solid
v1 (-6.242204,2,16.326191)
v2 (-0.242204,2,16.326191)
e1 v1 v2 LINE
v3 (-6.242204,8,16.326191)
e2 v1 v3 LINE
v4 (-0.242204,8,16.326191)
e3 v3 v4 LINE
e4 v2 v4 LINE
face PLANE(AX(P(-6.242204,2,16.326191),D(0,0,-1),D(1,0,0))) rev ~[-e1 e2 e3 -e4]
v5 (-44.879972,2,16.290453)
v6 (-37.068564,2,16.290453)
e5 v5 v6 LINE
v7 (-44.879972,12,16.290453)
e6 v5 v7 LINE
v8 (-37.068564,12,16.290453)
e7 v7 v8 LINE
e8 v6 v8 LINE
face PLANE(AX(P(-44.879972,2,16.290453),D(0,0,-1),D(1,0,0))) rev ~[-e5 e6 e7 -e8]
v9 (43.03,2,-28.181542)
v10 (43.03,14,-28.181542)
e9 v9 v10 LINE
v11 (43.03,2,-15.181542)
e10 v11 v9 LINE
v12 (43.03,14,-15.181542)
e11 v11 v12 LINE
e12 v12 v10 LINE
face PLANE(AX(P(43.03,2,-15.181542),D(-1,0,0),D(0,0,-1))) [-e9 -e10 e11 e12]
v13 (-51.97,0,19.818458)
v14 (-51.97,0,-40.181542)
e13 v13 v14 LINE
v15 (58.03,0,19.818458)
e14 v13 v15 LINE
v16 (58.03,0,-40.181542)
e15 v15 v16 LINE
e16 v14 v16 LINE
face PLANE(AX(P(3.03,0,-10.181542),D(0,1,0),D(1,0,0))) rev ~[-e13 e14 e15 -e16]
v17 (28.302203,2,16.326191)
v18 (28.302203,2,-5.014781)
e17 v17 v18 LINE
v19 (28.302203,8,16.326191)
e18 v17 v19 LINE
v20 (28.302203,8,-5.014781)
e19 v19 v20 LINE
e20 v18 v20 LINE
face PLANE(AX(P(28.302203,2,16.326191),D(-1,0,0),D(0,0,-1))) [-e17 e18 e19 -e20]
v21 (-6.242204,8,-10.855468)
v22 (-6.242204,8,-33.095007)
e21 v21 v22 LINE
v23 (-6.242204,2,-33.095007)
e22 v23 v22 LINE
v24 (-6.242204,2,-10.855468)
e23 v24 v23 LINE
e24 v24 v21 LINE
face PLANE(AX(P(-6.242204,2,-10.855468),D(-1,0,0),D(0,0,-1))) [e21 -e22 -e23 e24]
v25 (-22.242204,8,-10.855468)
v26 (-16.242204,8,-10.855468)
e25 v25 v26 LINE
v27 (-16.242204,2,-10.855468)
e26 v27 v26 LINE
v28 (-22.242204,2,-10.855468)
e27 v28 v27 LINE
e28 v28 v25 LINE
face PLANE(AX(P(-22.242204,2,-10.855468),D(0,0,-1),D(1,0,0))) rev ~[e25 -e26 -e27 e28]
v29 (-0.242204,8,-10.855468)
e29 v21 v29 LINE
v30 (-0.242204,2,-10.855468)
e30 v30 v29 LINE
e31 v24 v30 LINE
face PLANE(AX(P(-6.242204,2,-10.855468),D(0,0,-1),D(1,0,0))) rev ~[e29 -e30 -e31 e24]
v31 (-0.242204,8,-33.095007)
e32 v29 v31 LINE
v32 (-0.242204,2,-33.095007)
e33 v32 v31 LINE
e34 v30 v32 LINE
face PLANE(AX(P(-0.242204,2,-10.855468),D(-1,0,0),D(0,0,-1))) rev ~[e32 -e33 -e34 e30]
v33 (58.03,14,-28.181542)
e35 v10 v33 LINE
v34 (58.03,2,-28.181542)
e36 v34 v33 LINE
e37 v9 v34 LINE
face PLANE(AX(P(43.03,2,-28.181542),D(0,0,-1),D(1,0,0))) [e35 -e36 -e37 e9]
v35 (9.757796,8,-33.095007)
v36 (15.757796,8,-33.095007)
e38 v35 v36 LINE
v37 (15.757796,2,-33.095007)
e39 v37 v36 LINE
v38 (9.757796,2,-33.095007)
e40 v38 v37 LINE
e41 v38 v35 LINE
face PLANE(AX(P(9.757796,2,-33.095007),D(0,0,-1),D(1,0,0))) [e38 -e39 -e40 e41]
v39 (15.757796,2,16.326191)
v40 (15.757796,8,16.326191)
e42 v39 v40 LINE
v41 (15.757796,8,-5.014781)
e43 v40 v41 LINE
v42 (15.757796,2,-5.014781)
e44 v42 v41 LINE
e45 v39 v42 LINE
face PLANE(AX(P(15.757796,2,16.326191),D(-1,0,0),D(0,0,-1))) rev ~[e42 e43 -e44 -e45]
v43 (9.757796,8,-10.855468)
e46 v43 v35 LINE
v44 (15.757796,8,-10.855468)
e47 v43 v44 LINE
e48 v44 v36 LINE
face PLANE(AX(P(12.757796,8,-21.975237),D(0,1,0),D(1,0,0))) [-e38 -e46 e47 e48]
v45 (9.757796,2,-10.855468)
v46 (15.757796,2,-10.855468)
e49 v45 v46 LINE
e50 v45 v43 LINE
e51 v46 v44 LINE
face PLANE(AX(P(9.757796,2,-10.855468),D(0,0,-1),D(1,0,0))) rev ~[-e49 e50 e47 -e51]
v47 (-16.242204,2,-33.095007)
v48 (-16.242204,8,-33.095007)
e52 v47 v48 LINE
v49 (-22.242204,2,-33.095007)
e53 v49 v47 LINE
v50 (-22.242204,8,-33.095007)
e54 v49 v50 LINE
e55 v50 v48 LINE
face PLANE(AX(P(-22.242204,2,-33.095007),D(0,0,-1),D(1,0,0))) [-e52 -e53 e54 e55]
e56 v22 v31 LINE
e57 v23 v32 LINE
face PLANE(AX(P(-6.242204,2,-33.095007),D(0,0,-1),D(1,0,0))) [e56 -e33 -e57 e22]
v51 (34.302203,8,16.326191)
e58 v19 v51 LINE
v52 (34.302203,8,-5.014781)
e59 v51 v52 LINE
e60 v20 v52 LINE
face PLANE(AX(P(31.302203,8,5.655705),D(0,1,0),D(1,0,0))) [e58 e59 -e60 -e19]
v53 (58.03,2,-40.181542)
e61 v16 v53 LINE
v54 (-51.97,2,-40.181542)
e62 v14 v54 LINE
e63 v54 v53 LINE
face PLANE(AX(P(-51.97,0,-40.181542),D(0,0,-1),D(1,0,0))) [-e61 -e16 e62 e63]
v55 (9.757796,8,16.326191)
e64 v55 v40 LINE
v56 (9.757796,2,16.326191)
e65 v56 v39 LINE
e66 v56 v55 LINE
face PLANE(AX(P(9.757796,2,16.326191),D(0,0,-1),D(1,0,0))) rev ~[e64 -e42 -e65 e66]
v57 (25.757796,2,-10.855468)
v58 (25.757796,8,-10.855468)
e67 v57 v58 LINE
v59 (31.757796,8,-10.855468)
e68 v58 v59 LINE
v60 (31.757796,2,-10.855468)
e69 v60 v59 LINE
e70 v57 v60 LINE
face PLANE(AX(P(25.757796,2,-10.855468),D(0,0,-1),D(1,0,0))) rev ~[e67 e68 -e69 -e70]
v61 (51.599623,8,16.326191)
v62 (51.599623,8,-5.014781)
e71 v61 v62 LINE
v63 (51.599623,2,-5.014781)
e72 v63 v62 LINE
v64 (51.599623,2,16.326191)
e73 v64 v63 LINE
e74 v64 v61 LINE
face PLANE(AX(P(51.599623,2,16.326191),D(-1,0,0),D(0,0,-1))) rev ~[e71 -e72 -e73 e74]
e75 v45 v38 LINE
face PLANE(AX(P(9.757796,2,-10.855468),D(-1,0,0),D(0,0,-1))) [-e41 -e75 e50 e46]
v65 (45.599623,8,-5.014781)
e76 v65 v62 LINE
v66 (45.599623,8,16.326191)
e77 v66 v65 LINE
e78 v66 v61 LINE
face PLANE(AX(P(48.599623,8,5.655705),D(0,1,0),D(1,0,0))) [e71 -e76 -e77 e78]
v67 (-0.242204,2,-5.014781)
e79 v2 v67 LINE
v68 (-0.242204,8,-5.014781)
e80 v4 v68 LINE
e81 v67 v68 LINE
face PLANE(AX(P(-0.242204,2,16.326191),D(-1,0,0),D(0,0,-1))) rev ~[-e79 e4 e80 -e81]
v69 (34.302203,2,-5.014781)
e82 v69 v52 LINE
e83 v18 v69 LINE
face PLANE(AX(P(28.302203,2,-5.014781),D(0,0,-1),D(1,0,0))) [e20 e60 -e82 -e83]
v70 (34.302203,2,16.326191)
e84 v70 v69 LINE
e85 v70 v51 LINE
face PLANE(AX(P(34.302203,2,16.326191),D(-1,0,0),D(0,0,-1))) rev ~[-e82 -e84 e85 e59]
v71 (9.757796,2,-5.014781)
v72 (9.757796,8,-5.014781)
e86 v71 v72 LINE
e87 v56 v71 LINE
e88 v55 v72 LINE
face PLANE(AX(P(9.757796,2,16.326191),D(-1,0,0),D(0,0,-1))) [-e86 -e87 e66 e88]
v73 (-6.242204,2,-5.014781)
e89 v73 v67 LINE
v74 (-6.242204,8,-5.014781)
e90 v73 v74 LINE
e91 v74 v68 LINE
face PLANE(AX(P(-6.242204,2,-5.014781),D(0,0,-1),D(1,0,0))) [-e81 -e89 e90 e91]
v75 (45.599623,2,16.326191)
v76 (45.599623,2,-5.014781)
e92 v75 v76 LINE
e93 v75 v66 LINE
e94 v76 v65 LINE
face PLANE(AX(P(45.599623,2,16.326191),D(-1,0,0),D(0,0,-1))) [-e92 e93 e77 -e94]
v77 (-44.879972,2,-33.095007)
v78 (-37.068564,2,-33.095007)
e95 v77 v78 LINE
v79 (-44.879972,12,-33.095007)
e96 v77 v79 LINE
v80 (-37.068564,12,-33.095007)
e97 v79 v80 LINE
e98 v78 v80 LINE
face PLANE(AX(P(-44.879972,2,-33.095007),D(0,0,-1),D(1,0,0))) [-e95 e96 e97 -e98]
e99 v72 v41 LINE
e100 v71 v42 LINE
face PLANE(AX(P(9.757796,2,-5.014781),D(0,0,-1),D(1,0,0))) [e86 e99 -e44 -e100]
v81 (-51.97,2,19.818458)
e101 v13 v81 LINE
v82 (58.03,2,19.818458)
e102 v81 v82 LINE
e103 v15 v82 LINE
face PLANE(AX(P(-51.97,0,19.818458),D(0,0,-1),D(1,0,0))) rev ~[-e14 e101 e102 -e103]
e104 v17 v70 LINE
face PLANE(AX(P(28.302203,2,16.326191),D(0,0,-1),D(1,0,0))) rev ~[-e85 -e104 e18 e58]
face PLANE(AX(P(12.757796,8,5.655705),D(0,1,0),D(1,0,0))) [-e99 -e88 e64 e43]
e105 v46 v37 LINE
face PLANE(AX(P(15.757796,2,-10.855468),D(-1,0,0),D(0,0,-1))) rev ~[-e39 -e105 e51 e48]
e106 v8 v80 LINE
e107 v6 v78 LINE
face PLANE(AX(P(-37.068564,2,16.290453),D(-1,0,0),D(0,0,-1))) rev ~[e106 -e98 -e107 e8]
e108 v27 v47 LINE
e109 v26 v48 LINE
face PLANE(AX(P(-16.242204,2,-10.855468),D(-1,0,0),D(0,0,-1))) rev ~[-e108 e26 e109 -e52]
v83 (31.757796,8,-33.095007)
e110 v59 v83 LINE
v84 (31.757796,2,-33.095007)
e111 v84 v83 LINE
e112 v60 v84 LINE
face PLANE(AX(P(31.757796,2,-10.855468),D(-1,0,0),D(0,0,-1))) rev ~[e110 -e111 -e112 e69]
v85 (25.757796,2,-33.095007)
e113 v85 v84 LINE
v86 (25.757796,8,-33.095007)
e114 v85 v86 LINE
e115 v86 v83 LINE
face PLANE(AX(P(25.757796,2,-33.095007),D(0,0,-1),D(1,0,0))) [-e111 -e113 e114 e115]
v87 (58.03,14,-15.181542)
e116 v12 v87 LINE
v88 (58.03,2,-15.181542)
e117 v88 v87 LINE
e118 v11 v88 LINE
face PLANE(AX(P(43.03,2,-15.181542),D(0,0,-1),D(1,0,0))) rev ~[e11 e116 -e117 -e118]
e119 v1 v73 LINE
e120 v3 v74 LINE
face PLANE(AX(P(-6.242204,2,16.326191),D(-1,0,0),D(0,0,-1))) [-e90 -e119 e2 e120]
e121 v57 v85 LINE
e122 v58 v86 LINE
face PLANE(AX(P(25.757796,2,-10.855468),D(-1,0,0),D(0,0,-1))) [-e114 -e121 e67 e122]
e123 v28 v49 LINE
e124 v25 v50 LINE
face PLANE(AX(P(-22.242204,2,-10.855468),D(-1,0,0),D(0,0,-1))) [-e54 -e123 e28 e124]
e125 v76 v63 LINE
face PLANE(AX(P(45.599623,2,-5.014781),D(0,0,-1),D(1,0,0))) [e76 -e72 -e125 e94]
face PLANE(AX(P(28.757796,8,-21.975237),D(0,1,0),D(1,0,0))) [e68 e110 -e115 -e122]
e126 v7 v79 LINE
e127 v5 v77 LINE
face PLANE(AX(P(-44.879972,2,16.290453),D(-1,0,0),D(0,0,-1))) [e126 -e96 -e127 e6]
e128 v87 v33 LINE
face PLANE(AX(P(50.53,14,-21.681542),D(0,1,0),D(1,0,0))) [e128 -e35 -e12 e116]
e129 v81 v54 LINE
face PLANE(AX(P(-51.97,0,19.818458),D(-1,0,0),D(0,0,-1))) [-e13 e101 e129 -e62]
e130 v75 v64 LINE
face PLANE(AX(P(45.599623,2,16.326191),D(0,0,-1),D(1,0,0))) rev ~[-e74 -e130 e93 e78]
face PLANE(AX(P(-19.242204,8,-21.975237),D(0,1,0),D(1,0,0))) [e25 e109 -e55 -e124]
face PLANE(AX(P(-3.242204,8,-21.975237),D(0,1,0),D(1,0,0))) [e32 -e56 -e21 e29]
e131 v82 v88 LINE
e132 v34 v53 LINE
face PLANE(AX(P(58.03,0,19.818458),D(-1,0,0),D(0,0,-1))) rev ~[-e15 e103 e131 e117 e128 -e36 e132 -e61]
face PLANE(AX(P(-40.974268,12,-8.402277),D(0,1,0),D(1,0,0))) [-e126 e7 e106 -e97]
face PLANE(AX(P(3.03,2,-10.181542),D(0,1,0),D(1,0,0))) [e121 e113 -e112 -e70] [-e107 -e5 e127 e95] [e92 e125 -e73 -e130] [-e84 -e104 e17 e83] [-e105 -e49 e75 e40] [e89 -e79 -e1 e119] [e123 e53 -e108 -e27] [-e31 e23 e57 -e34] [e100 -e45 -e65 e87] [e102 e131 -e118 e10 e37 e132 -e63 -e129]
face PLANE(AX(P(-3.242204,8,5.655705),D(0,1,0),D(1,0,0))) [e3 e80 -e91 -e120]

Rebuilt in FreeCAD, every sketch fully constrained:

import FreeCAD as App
import Part
import Sketcher
Q = App.Units.Quantity

doc = App.newDocument("Part")
body = doc.addObject("PartDesign::Body", "Body")

sketch1 = body.newObject("Sketcher::SketchObject", "Sketch")
sketch1.AttachmentSupport = (doc.getObject("XZ_Plane"), [""])
sketch1.MapMode = "FlatFace"
sketch1.addGeometry(Part.LineSegment(App.Vector(-52, -40, 0), App.Vector(-52, 20, 0)), False)
sketch1.addGeometry(Part.LineSegment(App.Vector(-52, 20, 0), App.Vector(58, 20, 0)), False)
sketch1.addGeometry(Part.LineSegment(App.Vector(58, 20, 0), App.Vector(58, -40, 0)), False)
sketch1.addGeometry(Part.LineSegment(App.Vector(58, -40, 0), App.Vector(-52, -40, 0)), False)
sketch1.addConstraint(Sketcher.Constraint("Coincident", 0, 2, 1, 1))
sketch1.addConstraint(Sketcher.Constraint("Coincident", 1, 2, 2, 1))
sketch1.addConstraint(Sketcher.Constraint("Coincident", 2, 2, 3, 1))
sketch1.addConstraint(Sketcher.Constraint("Coincident", 3, 2, 0, 1))
sketch1.addConstraint(Sketcher.Constraint("Vertical", 0))
sketch1.addConstraint(Sketcher.Constraint("Horizontal", 1))
sketch1.addConstraint(Sketcher.Constraint("Vertical", 2))
sketch1.addConstraint(Sketcher.Constraint("Horizontal", 3))
sketch1.addConstraint(Sketcher.Constraint("DistanceX", 1, 1, 1, 2, Q("110 mm")))
sketch1.addConstraint(Sketcher.Constraint("DistanceY", 0, 1, 0, 2, Q("60 mm")))
sketch1.addConstraint(Sketcher.Constraint("DistanceX", 0, 2, -1, 1, Q("51.97 mm")))
sketch1.addConstraint(Sketcher.Constraint("DistanceY", -1, 1, 0, 2, Q("19.818458 mm")))
pad1 = body.newObject("PartDesign::Pad", "Pad")
pad1.Profile = sketch1
pad1.Length = 2
pad1.Reversed = True

sketch2 = body.newObject("Sketcher::SketchObject", "Sketch001")
sketch2.AttachmentSupport = (doc.getObject("XZ_Plane"), [""])
sketch2.MapMode = "FlatFace"
sketch2.AttachmentOffset = App.Placement(App.Vector(0, 0, -2), App.Rotation())
sketch2.addGeometry(Part.LineSegment(App.Vector(43, -28, 0), App.Vector(43, -15, 0)), False)
sketch2.addGeometry(Part.LineSegment(App.Vector(43, -15, 0), App.Vector(58, -15, 0)), False)
sketch2.addGeometry(Part.LineSegment(App.Vector(58, -15, 0), App.Vector(58, -28, 0)), False)
sketch2.addGeometry(Part.LineSegment(App.Vector(58, -28, 0), App.Vector(43, -28, 0)), False)
sketch2.addConstraint(Sketcher.Constraint("Coincident", 0, 2, 1, 1))
sketch2.addConstraint(Sketcher.Constraint("Coincident", 1, 2, 2, 1))
sketch2.addConstraint(Sketcher.Constraint("Coincident", 2, 2, 3, 1))
sketch2.addConstraint(Sketcher.Constraint("Coincident", 3, 2, 0, 1))
sketch2.addConstraint(Sketcher.Constraint("Vertical", 0))
sketch2.addConstraint(Sketcher.Constraint("Horizontal", 1))
sketch2.addConstraint(Sketcher.Constraint("Vertical", 2))
sketch2.addConstraint(Sketcher.Constraint("Horizontal", 3))
sketch2.addConstraint(Sketcher.Constraint("DistanceX", 1, 1, 1, 2, Q("15 mm")))
sketch2.addConstraint(Sketcher.Constraint("DistanceY", 0, 1, 0, 2, Q("13 mm")))
sketch2.addConstraint(Sketcher.Constraint("DistanceX", -1, 1, 0, 2, Q("43.03 mm")))
sketch2.addConstraint(Sketcher.Constraint("DistanceY", 0, 2, -1, 1, Q("15.181542 mm")))
pad2 = body.newObject("PartDesign::Pad", "Pad001")
pad2.Profile = sketch2
pad2.Length = 12
pad2.Reversed = True

sketch3 = body.newObject("Sketcher::SketchObject", "Sketch002")
sketch3.AttachmentSupport = (doc.getObject("XZ_Plane"), [""])
sketch3.MapMode = "FlatFace"
sketch3.AttachmentOffset = App.Placement(App.Vector(0, 0, -2), App.Rotation())
sketch3.addGeometry(Part.LineSegment(App.Vector(26, -33, 0), App.Vector(26, -11, 0)), False)
sketch3.addGeometry(Part.LineSegment(App.Vector(26, -11, 0), App.Vector(32, -11, 0)), False)
sketch3.addGeometry(Part.LineSegment(App.Vector(32, -11, 0), App.Vector(32, -33, 0)), False)
sketch3.addGeometry(Part.LineSegment(App.Vector(32, -33, 0), App.Vector(26, -33, 0)), False)
sketch3.addGeometry(Part.LineSegment(App.Vector(10, -33, 0), App.Vector(10, -11, 0)), False)
sketch3.addGeometry(Part.LineSegment(App.Vector(10, -11, 0), App.Vector(16, -11, 0)), False)
sketch3.addGeometry(Part.LineSegment(App.Vector(16, -11, 0), App.Vector(16, -33, 0)), False)
sketch3.addGeometry(Part.LineSegment(App.Vector(16, -33, 0), App.Vector(10, -33, 0)), False)
sketch3.addGeometry(Part.LineSegment(App.Vector(-6, -33, 0), App.Vector(-6, -11, 0)), False)
sketch3.addGeometry(Part.LineSegment(App.Vector(-6, -11, 0), App.Vector(0, -11, 0)), False)
sketch3.addGeometry(Part.LineSegment(App.Vector(0, -11, 0), App.Vector(0, -33, 0)), False)
sketch3.addGeometry(Part.LineSegment(App.Vector(0, -33, 0), App.Vector(-6, -33, 0)), False)
sketch3.addGeometry(Part.LineSegment(App.Vector(-22, -33, 0), App.Vector(-22, -11, 0)), False)
sketch3.addGeometry(Part.LineSegment(App.Vector(-22, -11, 0), App.Vector(-16, -11, 0)), False)
sketch3.addGeometry(Part.LineSegment(App.Vector(-16, -11, 0), App.Vector(-16, -33, 0)), False)
sketch3.addGeometry(Part.LineSegment(App.Vector(-16, -33, 0), App.Vector(-22, -33, 0)), False)
sketch3.addGeometry(Part.LineSegment(App.Vector(46, -5, 0), App.Vector(46, 16, 0)), False)
sketch3.addGeometry(Part.LineSegment(App.Vector(46, 16, 0), App.Vector(52, 16, 0)), False)
sketch3.addGeometry(Part.LineSegment(App.Vector(52, 16, 0), App.Vector(52, -5, 0)), False)
sketch3.addGeometry(Part.LineSegment(App.Vector(52, -5, 0), App.Vector(46, -5, 0)), False)
sketch3.addGeometry(Part.LineSegment(App.Vector(28, -5, 0), App.Vector(28, 16, 0)), False)
sketch3.addGeometry(Part.LineSegment(App.Vector(28, 16, 0), App.Vector(34, 16, 0)), False)
sketch3.addGeometry(Part.LineSegment(App.Vector(34, 16, 0), App.Vector(34, -5, 0)), False)
sketch3.addGeometry(Part.LineSegment(App.Vector(34, -5, 0), App.Vector(28, -5, 0)), False)
sketch3.addGeometry(Part.LineSegment(App.Vector(10, -5, 0), App.Vector(10, 16, 0)), False)
sketch3.addGeometry(Part.LineSegment(App.Vector(10, 16, 0), App.Vector(16, 16, 0)), False)
sketch3.addGeometry(Part.LineSegment(App.Vector(16, 16, 0), App.Vector(16, -5, 0)), False)
sketch3.addGeometry(Part.LineSegment(App.Vector(16, -5, 0), App.Vector(10, -5, 0)), False)
sketch3.addGeometry(Part.LineSegment(App.Vector(-6, -5, 0), App.Vector(-6, 16, 0)), False)
sketch3.addGeometry(Part.LineSegment(App.Vector(-6, 16, 0), App.Vector(0, 16, 0)), False)
sketch3.addGeometry(Part.LineSegment(App.Vector(0, 16, 0), App.Vector(0, -5, 0)), False)
sketch3.addGeometry(Part.LineSegment(App.Vector(0, -5, 0), App.Vector(-6, -5, 0)), False)
sketch3.addConstraint(Sketcher.Constraint("Coincident", 0, 2, 1, 1))
sketch3.addConstraint(Sketcher.Constraint("Coincident", 1, 2, 2, 1))
sketch3.addConstraint(Sketcher.Constraint("Coincident", 2, 2, 3, 1))
sketch3.addConstraint(Sketcher.Constraint("Coincident", 3, 2, 0, 1))
sketch3.addConstraint(Sketcher.Constraint("Coincident", 4, 2, 5, 1))
sketch3.addConstraint(Sketcher.Constraint("Coincident", 5, 2, 6, 1))
sketch3.addConstraint(Sketcher.Constraint("Coincident", 6, 2, 7, 1))
sketch3.addConstraint(Sketcher.Constraint("Coincident", 7, 2, 4, 1))
sketch3.addConstraint(Sketcher.Constraint("Coincident", 8, 2, 9, 1))
sketch3.addConstraint(Sketcher.Constraint("Coincident", 9, 2, 10, 1))
sketch3.addConstraint(Sketcher.Constraint("Coincident", 10, 2, 11, 1))
sketch3.addConstraint(Sketcher.Constraint("Coincident", 11, 2, 8, 1))
sketch3.addConstraint(Sketcher.Constraint("Coincident", 12, 2, 13, 1))
sketch3.addConstraint(Sketcher.Constraint("Coincident", 13, 2, 14, 1))
sketch3.addConstraint(Sketcher.Constraint("Coincident", 14, 2, 15, 1))
sketch3.addConstraint(Sketcher.Constraint("Coincident", 15, 2, 12, 1))
sketch3.addConstraint(Sketcher.Constraint("Coincident", 16, 2, 17, 1))
sketch3.addConstraint(Sketcher.Constraint("Coincident", 17, 2, 18, 1))
sketch3.addConstraint(Sketcher.Constraint("Coincident", 18, 2, 19, 1))
sketch3.addConstraint(Sketcher.Constraint("Coincident", 19, 2, 16, 1))
sketch3.addConstraint(Sketcher.Constraint("Coincident", 20, 2, 21, 1))
sketch3.addConstraint(Sketcher.Constraint("Coincident", 21, 2, 22, 1))
sketch3.addConstraint(Sketcher.Constraint("Coincident", 22, 2, 23, 1))
sketch3.addConstraint(Sketcher.Constraint("Coincident", 23, 2, 20, 1))
sketch3.addConstraint(Sketcher.Constraint("Coincident", 24, 2, 25, 1))
sketch3.addConstraint(Sketcher.Constraint("Coincident", 25, 2, 26, 1))
sketch3.addConstraint(Sketcher.Constraint("Coincident", 26, 2, 27, 1))
sketch3.addConstraint(Sketcher.Constraint("Coincident", 27, 2, 24, 1))
sketch3.addConstraint(Sketcher.Constraint("Coincident", 28, 2, 29, 1))
sketch3.addConstraint(Sketcher.Constraint("Coincident", 29, 2, 30, 1))
sketch3.addConstraint(Sketcher.Constraint("Coincident", 30, 2, 31, 1))
sketch3.addConstraint(Sketcher.Constraint("Coincident", 31, 2, 28, 1))
sketch3.addConstraint(Sketcher.Constraint("Vertical", 0))
sketch3.addConstraint(Sketcher.Constraint("Horizontal", 1))
sketch3.addConstraint(Sketcher.Constraint("Vertical", 2))
sketch3.addConstraint(Sketcher.Constraint("Horizontal", 3))
sketch3.addConstraint(Sketcher.Constraint("Vertical", 4))
sketch3.addConstraint(Sketcher.Constraint("Horizontal", 5))
sketch3.addConstraint(Sketcher.Constraint("Vertical", 6))
sketch3.addConstraint(Sketcher.Constraint("Horizontal", 7))
sketch3.addConstraint(Sketcher.Constraint("Vertical", 8))
sketch3.addConstraint(Sketcher.Constraint("Horizontal", 9))
sketch3.addConstraint(Sketcher.Constraint("Vertical", 10))
sketch3.addConstraint(Sketcher.Constraint("Horizontal", 11))
sketch3.addConstraint(Sketcher.Constraint("Vertical", 12))
sketch3.addConstraint(Sketcher.Constraint("Horizontal", 13))
sketch3.addConstraint(Sketcher.Constraint("Vertical", 14))
sketch3.addConstraint(Sketcher.Constraint("Horizontal", 15))
sketch3.addConstraint(Sketcher.Constraint("Vertical", 16))
sketch3.addConstraint(Sketcher.Constraint("Horizontal", 17))
sketch3.addConstraint(Sketcher.Constraint("Vertical", 18))
sketch3.addConstraint(Sketcher.Constraint("Horizontal", 19))
sketch3.addConstraint(Sketcher.Constraint("Vertical", 20))
sketch3.addConstraint(Sketcher.Constraint("Horizontal", 21))
sketch3.addConstraint(Sketcher.Constraint("Vertical", 22))
sketch3.addConstraint(Sketcher.Constraint("Horizontal", 23))
sketch3.addConstraint(Sketcher.Constraint("Vertical", 24))
sketch3.addConstraint(Sketcher.Constraint("Horizontal", 25))
sketch3.addConstraint(Sketcher.Constraint("Vertical", 26))
sketch3.addConstraint(Sketcher.Constraint("Horizontal", 27))
sketch3.addConstraint(Sketcher.Constraint("Vertical", 28))
sketch3.addConstraint(Sketcher.Constraint("Horizontal", 29))
sketch3.addConstraint(Sketcher.Constraint("Vertical", 30))
sketch3.addConstraint(Sketcher.Constraint("Horizontal", 31))
sketch3.addConstraint(Sketcher.Constraint("Horizontal", 1, 2, 4, 2))
sketch3.addConstraint(Sketcher.Constraint("Horizontal", 3, 2, 6, 2))
sketch3.addConstraint(Sketcher.Constraint("Horizontal", 5, 2, 8, 2))
sketch3.addConstraint(Sketcher.Constraint("Horizontal", 7, 2, 10, 2))
sketch3.addConstraint(Sketcher.Constraint("Horizontal", 9, 2, 12, 2))
sketch3.addConstraint(Sketcher.Constraint("Horizontal", 11, 2, 14, 2))
sketch3.addConstraint(Sketcher.Constraint("Horizontal", 17, 2, 20, 2))
sketch3.addConstraint(Sketcher.Constraint("Horizontal", 19, 2, 22, 2))
sketch3.addConstraint(Sketcher.Constraint("Horizontal", 21, 2, 24, 2))
sketch3.addConstraint(Sketcher.Constraint("Horizontal", 23, 2, 26, 2))
sketch3.addConstraint(Sketcher.Constraint("Horizontal", 25, 2, 28, 2))
sketch3.addConstraint(Sketcher.Constraint("Horizontal", 27, 2, 30, 2))
sketch3.addConstraint(Sketcher.Constraint("Vertical", 7, 2, 24, 2))
sketch3.addConstraint(Sketcher.Constraint("Vertical", 6, 2, 25, 2))
sketch3.addConstraint(Sketcher.Constraint("Vertical", 11, 2, 28, 2))
sketch3.addConstraint(Sketcher.Constraint("Vertical", 10, 2, 29, 2))
sketch3.addConstraint(Sketcher.Constraint("Equal", 3, 5))
sketch3.addConstraint(Sketcher.Constraint("Equal", 7, 9))
sketch3.addConstraint(Sketcher.Constraint("Equal", 11, 13))
sketch3.addConstraint(Sketcher.Constraint("Equal", 15, 17))
sketch3.addConstraint(Sketcher.Constraint("Equal", 19, 21))
sketch3.addConstraint(Sketcher.Constraint("DistanceX", 1, 1, 1, 2, Q("6 mm")))
sketch3.addConstraint(Sketcher.Constraint("DistanceX", 4, 2, 0, 2, Q("16 mm")))
sketch3.addConstraint(Sketcher.Constraint("DistanceX", 8, 2, 4, 2, Q("16 mm")))
sketch3.addConstraint(Sketcher.Constraint("DistanceX", 12, 2, 8, 2, Q("16 mm")))
sketch3.addConstraint(Sketcher.Constraint("DistanceY", 0, 1, 0, 2, Q("22.239539 mm")))
sketch3.addConstraint(Sketcher.Constraint("DistanceY", 2, 2, 16, 2, Q("49.421198 mm")))
sketch3.addConstraint(Sketcher.Constraint("DistanceY", 16, 1, 16, 2, Q("21.340972 mm")))
sketch3.addConstraint(Sketcher.Constraint("DistanceY", -1, 1, 16, 2, Q("16.326191 mm")))
sketch3.addConstraint(Sketcher.Constraint("DistanceX", 20, 2, 16, 2, Q("17.297419 mm")))
sketch3.addConstraint(Sketcher.Constraint("DistanceX", -1, 1, 0, 2, Q("25.757796 mm")))
sketch3.addConstraint(Sketcher.Constraint("DistanceX", -1, 1, 16, 2, Q("45.599623 mm")))
pad3 = body.newObject("PartDesign::Pad", "Pad002")
pad3.Profile = sketch3
pad3.Length = 6
pad3.Reversed = True

sketch4 = body.newObject("Sketcher::SketchObject", "Sketch003")
sketch4.AttachmentSupport = (doc.getObject("XZ_Plane"), [""])
sketch4.MapMode = "FlatFace"
sketch4.AttachmentOffset = App.Placement(App.Vector(0, 0, -2), App.Rotation())
sketch4.addGeometry(Part.LineSegment(App.Vector(-45, -33, 0), App.Vector(-45, 16, 0)), False)
sketch4.addGeometry(Part.LineSegment(App.Vector(-45, 16, 0), App.Vector(-37, 16, 0)), False)
sketch4.addGeometry(Part.LineSegment(App.Vector(-37, 16, 0), App.Vector(-37, -33, 0)), False)
sketch4.addGeometry(Part.LineSegment(App.Vector(-37, -33, 0), App.Vector(-45, -33, 0)), False)
sketch4.addConstraint(Sketcher.Constraint("Coincident", 0, 2, 1, 1))
sketch4.addConstraint(Sketcher.Constraint("Coincident", 1, 2, 2, 1))
sketch4.addConstraint(Sketcher.Constraint("Coincident", 2, 2, 3, 1))
sketch4.addConstraint(Sketcher.Constraint("Coincident", 3, 2, 0, 1))
sketch4.addConstraint(Sketcher.Constraint("Vertical", 0))
sketch4.addConstraint(Sketcher.Constraint("Horizontal", 1))
sketch4.addConstraint(Sketcher.Constraint("Vertical", 2))
sketch4.addConstraint(Sketcher.Constraint("Horizontal", 3))
sketch4.addConstraint(Sketcher.Constraint("DistanceX", 1, 1, 1, 2, Q("7.811408 mm")))
sketch4.addConstraint(Sketcher.Constraint("DistanceY", 0, 1, 0, 2, Q("49.38546 mm")))
sketch4.addConstraint(Sketcher.Constraint("DistanceX", 0, 2, -1, 1, Q("44.879972 mm")))
sketch4.addConstraint(Sketcher.Constraint("DistanceY", -1, 1, 0, 2, Q("16.290453 mm")))
pad4 = body.newObject("PartDesign::Pad", "Pad003")
pad4.Profile = sketch4
pad4.Length = 10
pad4.Reversed = True

doc.recompute()
